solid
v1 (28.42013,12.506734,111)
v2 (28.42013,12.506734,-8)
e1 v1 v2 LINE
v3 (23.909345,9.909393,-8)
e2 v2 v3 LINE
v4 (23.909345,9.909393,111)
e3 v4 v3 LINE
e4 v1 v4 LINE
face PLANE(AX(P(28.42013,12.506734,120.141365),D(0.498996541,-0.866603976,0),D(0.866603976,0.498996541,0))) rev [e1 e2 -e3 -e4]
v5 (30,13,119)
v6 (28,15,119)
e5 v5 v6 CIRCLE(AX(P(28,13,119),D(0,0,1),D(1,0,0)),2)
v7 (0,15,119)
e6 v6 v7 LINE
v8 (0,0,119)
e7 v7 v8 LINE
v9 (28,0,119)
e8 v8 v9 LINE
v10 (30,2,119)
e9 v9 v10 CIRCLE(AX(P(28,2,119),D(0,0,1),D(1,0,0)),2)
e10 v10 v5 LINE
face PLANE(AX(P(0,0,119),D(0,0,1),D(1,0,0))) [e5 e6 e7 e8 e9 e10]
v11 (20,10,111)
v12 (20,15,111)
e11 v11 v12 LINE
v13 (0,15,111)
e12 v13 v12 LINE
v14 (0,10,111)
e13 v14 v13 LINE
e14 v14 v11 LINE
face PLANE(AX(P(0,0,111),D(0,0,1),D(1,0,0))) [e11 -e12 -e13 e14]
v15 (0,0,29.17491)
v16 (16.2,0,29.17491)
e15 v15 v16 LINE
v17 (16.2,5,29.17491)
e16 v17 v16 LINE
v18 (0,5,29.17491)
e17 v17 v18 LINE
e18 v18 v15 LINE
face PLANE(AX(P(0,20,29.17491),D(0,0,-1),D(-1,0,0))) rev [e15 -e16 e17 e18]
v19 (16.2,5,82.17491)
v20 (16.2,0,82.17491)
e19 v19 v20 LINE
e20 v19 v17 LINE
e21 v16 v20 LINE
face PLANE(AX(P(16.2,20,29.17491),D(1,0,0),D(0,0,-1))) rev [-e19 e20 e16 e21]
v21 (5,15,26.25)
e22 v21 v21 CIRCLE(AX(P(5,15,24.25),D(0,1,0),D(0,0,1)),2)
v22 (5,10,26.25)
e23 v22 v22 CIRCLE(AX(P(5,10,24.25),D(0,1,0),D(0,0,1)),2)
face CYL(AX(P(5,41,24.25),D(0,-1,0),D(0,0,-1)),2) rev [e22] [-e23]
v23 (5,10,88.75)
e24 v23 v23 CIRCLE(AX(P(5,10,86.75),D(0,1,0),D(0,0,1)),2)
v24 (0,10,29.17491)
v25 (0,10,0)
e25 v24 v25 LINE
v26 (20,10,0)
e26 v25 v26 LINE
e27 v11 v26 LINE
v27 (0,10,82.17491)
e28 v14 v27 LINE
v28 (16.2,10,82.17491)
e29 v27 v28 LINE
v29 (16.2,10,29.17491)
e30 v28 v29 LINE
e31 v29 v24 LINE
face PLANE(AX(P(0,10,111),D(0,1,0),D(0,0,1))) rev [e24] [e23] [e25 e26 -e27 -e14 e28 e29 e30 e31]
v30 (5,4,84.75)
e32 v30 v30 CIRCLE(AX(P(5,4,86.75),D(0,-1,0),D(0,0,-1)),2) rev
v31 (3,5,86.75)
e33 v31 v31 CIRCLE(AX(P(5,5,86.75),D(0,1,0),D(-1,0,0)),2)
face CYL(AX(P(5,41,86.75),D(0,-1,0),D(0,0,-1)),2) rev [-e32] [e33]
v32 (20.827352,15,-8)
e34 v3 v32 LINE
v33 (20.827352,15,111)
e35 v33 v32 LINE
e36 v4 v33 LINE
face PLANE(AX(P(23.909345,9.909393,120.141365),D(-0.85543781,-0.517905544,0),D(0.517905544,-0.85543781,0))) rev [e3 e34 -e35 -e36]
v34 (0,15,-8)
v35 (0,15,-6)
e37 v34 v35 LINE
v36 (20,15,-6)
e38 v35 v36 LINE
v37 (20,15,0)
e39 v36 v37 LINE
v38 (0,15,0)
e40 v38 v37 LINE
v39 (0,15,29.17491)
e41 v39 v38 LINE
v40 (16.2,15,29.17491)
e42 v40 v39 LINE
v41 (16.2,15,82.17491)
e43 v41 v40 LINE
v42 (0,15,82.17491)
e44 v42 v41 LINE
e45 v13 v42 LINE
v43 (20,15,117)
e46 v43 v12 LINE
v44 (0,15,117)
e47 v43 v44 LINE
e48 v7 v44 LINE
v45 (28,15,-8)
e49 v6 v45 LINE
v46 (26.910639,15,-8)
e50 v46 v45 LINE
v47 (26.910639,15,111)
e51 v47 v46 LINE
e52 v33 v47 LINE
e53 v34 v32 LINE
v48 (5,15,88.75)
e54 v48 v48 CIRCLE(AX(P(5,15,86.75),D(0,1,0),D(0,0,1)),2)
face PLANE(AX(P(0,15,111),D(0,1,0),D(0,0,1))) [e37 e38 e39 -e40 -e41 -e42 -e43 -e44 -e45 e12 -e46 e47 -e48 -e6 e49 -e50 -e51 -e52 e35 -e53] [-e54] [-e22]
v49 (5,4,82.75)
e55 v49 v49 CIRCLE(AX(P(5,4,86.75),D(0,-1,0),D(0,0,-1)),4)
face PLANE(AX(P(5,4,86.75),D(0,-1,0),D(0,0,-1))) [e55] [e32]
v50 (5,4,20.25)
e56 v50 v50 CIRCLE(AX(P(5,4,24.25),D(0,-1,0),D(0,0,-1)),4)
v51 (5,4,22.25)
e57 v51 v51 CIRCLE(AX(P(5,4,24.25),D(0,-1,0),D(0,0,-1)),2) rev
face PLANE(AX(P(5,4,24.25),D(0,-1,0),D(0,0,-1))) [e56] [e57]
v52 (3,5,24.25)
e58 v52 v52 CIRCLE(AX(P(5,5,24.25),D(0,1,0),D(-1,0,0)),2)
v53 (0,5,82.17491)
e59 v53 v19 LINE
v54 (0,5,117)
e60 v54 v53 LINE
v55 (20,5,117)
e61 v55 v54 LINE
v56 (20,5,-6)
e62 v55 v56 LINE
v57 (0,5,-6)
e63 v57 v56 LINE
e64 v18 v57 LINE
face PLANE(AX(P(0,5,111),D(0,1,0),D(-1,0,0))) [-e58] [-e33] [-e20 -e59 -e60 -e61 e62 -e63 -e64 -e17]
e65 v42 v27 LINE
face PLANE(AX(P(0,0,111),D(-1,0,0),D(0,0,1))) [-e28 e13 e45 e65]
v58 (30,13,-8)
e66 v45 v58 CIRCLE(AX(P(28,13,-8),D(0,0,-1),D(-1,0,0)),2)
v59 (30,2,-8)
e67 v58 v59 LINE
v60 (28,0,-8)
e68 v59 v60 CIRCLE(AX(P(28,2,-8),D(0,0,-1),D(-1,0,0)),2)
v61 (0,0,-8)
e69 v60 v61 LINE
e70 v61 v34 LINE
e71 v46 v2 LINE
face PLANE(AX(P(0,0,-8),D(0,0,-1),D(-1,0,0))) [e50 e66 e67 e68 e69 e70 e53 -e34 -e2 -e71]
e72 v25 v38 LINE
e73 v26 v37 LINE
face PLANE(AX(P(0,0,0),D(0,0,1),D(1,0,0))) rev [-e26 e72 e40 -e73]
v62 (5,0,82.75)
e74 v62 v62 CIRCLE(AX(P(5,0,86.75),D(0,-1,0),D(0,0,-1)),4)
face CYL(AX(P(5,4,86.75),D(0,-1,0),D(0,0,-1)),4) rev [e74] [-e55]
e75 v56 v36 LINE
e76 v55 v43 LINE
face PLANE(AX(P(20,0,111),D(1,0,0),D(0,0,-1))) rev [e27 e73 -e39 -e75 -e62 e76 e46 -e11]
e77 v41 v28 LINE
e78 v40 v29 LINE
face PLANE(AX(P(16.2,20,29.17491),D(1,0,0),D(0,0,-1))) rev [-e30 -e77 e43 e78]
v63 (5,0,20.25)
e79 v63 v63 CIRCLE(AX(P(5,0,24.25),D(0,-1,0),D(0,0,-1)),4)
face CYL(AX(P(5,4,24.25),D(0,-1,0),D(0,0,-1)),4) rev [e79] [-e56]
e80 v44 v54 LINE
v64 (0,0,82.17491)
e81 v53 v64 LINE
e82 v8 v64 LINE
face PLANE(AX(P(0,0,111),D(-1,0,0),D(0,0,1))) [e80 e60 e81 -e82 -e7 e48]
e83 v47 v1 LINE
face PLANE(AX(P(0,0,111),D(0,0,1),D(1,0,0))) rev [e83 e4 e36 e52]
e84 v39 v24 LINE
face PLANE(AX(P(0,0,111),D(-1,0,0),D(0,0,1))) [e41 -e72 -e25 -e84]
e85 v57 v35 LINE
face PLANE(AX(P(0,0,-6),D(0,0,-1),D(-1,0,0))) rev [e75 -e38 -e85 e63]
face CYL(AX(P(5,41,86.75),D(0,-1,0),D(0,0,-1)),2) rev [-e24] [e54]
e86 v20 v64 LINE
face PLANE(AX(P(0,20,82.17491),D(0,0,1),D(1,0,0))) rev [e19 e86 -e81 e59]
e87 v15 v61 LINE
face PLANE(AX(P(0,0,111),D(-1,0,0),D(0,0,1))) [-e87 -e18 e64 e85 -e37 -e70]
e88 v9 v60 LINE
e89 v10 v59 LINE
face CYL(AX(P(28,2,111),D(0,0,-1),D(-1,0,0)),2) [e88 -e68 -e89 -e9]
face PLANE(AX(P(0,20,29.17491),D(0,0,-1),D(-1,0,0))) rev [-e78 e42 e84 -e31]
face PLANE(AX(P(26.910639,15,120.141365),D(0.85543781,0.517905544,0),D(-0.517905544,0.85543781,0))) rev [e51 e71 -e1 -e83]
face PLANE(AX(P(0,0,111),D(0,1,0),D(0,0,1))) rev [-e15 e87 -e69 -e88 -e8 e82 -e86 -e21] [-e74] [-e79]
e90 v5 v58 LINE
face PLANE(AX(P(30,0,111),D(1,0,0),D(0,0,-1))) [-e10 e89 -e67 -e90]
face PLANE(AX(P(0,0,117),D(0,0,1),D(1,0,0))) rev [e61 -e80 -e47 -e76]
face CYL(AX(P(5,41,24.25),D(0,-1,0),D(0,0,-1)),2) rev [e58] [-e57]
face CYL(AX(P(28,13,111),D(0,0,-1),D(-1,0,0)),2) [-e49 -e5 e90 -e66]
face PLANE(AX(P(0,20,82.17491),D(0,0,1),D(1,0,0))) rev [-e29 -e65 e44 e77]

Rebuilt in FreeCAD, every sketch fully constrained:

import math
import FreeCAD as App
import Part
import Sketcher
Q = App.Units.Quantity

doc = App.newDocument("Part")
body = doc.addObject("PartDesign::Body", "Body")

# Sketch on XY plane
sketch1 = doc.addObject("Sketcher::SketchObject", "Sketch")
body.addObject(sketch1)
sketch1.AttachmentSupport = (doc.XY_Plane, [""])
sketch1.MapMode = "FlatFace"
sketch1.addGeometry([
    Part.LineSegment(App.Vector(0, 5, 0), App.Vector(0, 0, 0)),  # 0
    Part.LineSegment(App.Vector(0, 0, 0), App.Vector(28, 0, 0)),  # 1
    Part.ArcOfCircle(Part.Circle(App.Vector(28, 2, 0), App.Vector(0, 0, 1), 2), math.radians(-90), math.radians(0)),  # 2
    Part.LineSegment(App.Vector(30, 2, 0), App.Vector(30, 13, 0)),  # 3
    Part.ArcOfCircle(Part.Circle(App.Vector(28, 13, 0), App.Vector(0, 0, 1), 2), math.radians(0), math.radians(90)),  # 4
    Part.LineSegment(App.Vector(28, 15, 0), App.Vector(0, 15, 0)),  # 5
    Part.LineSegment(App.Vector(0, 15, 0), App.Vector(0, 10, 0)),  # 6
    Part.LineSegment(App.Vector(0, 10, 0), App.Vector(20, 10, 0)),  # 7
    Part.LineSegment(App.Vector(20, 10, 0), App.Vector(20, 5, 0)),  # 8
    Part.LineSegment(App.Vector(20, 5, 0), App.Vector(0, 5, 0)),  # 9
], False)
sketch1.addConstraint([
    Sketcher.Constraint("Coincident", 0, 2, 1, 1),
    Sketcher.Constraint("Tangent", 1, 2, 2, 1),
    Sketcher.Constraint("Tangent", 2, 2, 3, 1),
    Sketcher.Constraint("Tangent", 3, 2, 4, 1),
    Sketcher.Constraint("Tangent", 4, 2, 5, 1),
    Sketcher.Constraint("Coincident", 5, 2, 6, 1),
    Sketcher.Constraint("Coincident", 6, 2, 7, 1),
    Sketcher.Constraint("Coincident", 7, 2, 8, 1),
    Sketcher.Constraint("Coincident", 8, 2, 9, 1),
    Sketcher.Constraint("Coincident", 9, 2, 0, 1),
    Sketcher.Constraint("Vertical", 0),
    Sketcher.Constraint("Horizontal", 1),
    Sketcher.Constraint("Vertical", 3),
    Sketcher.Constraint("Horizontal", 5),
    Sketcher.Constraint("Vertical", 6),
    Sketcher.Constraint("Horizontal", 7),
    Sketcher.Constraint("Vertical", 8),
    Sketcher.Constraint("Horizontal", 9),
    Sketcher.Constraint("Coincident", 0, 2, -1, 1),
    Sketcher.Constraint("Equal", 2, 4),
    Sketcher.Constraint("PointOnObject", 5, 2, -2),
    Sketcher.Constraint("Equal", 0, 6),
    Sketcher.Constraint("Equal", 6, 8),
    Sketcher.Constraint("Radius", 2, Q("2 mm")),
    Sketcher.Constraint("DistanceX", 1, 1, 1, 2, Q("28 mm")),
    Sketcher.Constraint("DistanceX", 7, 1, 7, 2, Q("20 mm")),
    Sketcher.Constraint("DistanceY", 0, 2, 0, 1, Q("5 mm")),
])
pad1 = doc.addObject("PartDesign::Pad", "Pad")
body.addObject(pad1)
pad1.Profile = sketch1
pad1.Length = 111

# Sketch on XY plane
sketch2 = doc.addObject("Sketcher::SketchObject", "Sketch001")
body.addObject(sketch2)
sketch2.AttachmentSupport = (doc.XY_Plane, [""])
sketch2.MapMode = "FlatFace"
sketch2.AttachmentOffset = App.Placement(App.Vector(0, 0, 111), App.Rotation())
sketch2.addGeometry([
    Part.LineSegment(App.Vector(20, 15, 0), App.Vector(20, 5, 0)),  # 0
    Part.LineSegment(App.Vector(20, 5, 0), App.Vector(0, 5, 0)),  # 1
    Part.LineSegment(App.Vector(0, 5, 0), App.Vector(0, 0, 0)),  # 2
    Part.LineSegment(App.Vector(0, 0, 0), App.Vector(28, 0, 0)),  # 3
    Part.ArcOfCircle(Part.Circle(App.Vector(28, 2, 0), App.Vector(0, 0, 1), 2), math.radians(-90), math.radians(0)),  # 4
    Part.LineSegment(App.Vector(30, 2, 0), App.Vector(30, 13, 0)),  # 5
    Part.ArcOfCircle(Part.Circle(App.Vector(28, 13, 0), App.Vector(0, 0, 1), 2), math.radians(0), math.radians(90)),  # 6
    Part.LineSegment(App.Vector(28, 15, 0), App.Vector(20, 15, 0)),  # 7
], False)
sketch2.addConstraint([
    Sketcher.Constraint("Coincident", 0, 2, 1, 1),
    Sketcher.Constraint("Coincident", 1, 2, 2, 1),
    Sketcher.Constraint("Coincident", 2, 2, 3, 1),
    Sketcher.Constraint("Tangent", 3, 2, 4, 1),
    Sketcher.Constraint("Tangent", 4, 2, 5, 1),
    Sketcher.Constraint("Tangent", 5, 2, 6, 1),
    Sketcher.Constraint("Tangent", 6, 2, 7, 1),
    Sketcher.Constraint("Coincident", 7, 2, 0, 1),
    Sketcher.Constraint("Vertical", 0),
    Sketcher.Constraint("Horizontal", 1),
    Sketcher.Constraint("Vertical", 2),
    Sketcher.Constraint("Horizontal", 3),
    Sketcher.Constraint("Vertical", 5),
    Sketcher.Constraint("Horizontal", 7),
    Sketcher.Constraint("Coincident", 2, 2, -1, 1),
    Sketcher.Constraint("Equal", 4, 6),
    Sketcher.Constraint("Radius", 4, Q("2 mm")),
    Sketcher.Constraint("DistanceX", 1, 2, 1, 1, Q("20 mm")),
    Sketcher.Constraint("DistanceX", 3, 1, 3, 2, Q("28 mm")),
    Sketcher.Constraint("DistanceY", 0, 2, 0, 1, Q("10 mm")),
    Sketcher.Constraint("DistanceY", 2, 2, 2, 1, Q("5 mm")),
])
pad2 = doc.addObject("PartDesign::Pad", "Pad001")
body.addObject(pad2)
pad2.Profile = sketch2
pad2.Length = 6

# Sketch on XY plane
sketch3 = doc.addObject("Sketcher::SketchObject", "Sketch002")
body.addObject(sketch3)
sketch3.AttachmentSupport = (doc.XY_Plane, [""])
sketch3.MapMode = "FlatFace"
sketch3.AttachmentOffset = App.Placement(App.Vector(0, 0, 117), App.Rotation())
sketch3.addGeometry([
    Part.LineSegment(App.Vector(0, 15, 0), App.Vector(0, 0, 0)),  # 0
    Part.LineSegment(App.Vector(0, 0, 0), App.Vector(28, 0, 0)),  # 1
    Part.ArcOfCircle(Part.Circle(App.Vector(28, 2, 0), App.Vector(0, 0, 1), 2), math.radians(-90), math.radians(0)),  # 2
    Part.LineSegment(App.Vector(30, 2, 0), App.Vector(30, 13, 0)),  # 3
    Part.ArcOfCircle(Part.Circle(App.Vector(28, 13, 0), App.Vector(0, 0, 1), 2), math.radians(0), math.radians(90)),  # 4
    Part.LineSegment(App.Vector(28, 15, 0), App.Vector(0, 15, 0)),  # 5
], False)
sketch3.addConstraint([
    Sketcher.Constraint("Coincident", 0, 2, 1, 1),
    Sketcher.Constraint("Tangent", 1, 2, 2, 1),
    Sketcher.Constraint("Tangent", 2, 2, 3, 1),
    Sketcher.Constraint("Tangent", 3, 2, 4, 1),
    Sketcher.Constraint("Tangent", 4, 2, 5, 1),
    Sketcher.Constraint("Coincident", 5, 2, 0, 1),
    Sketcher.Constraint("Vertical", 0),
    Sketcher.Constraint("Horizontal", 1),
    Sketcher.Constraint("Vertical", 3),
    Sketcher.Constraint("Horizontal", 5),
    Sketcher.Constraint("Coincident", 0, 2, -1, 1),
    Sketcher.Constraint("Equal", 2, 4),
    Sketcher.Constraint("Radius", 2, Q("2 mm")),
    Sketcher.Constraint("DistanceX", 1, 1, 1, 2, Q("28 mm")),
    Sketcher.Constraint("DistanceY", 0, 2, 0, 1, Q("15 mm")),
])
pad3 = doc.addObject("PartDesign::Pad", "Pad002")
body.addObject(pad3)
pad3.Profile = sketch3
pad3.Length = 2

# Sketch on XY plane
sketch4 = doc.addObject("Sketcher::SketchObject", "Sketch003")
body.addObject(sketch4)
sketch4.AttachmentSupport = (doc.XY_Plane, [""])
sketch4.MapMode = "FlatFace"
sketch4.addGeometry([
    Part.LineSegment(App.Vector(20, 5, 0), App.Vector(20, 15, 0)),  # 0
    Part.LineSegment(App.Vector(20, 15, 0), App.Vector(28, 15, 0)),  # 1
    Part.ArcOfCircle(Part.Circle(App.Vector(28, 13, 0), App.Vector(0, 0, 1), 2), math.radians(0), math.radians(90)),  # 2
    Part.LineSegment(App.Vector(30, 13, 0), App.Vector(30, 2, 0)),  # 3
    Part.ArcOfCircle(Part.Circle(App.Vector(28, 2, 0), App.Vector(0, 0, 1), 2), math.radians(-90), math.radians(0)),  # 4
    Part.LineSegment(App.Vector(28, 0, 0), App.Vector(0, 0, 0)),  # 5
    Part.LineSegment(App.Vector(0, 0, 0), App.Vector(0, 5, 0)),  # 6
    Part.LineSegment(App.Vector(0, 5, 0), App.Vector(20, 5, 0)),  # 7
], False)
sketch4.addConstraint([
    Sketcher.Constraint("Coincident", 0, 2, 1, 1),
    Sketcher.Constraint("Tangent", 1, 2, 2, 2),
    Sketcher.Constraint("Tangent", 2, 1, 3, 1),
    Sketcher.Constraint("Tangent", 3, 2, 4, 2),
    Sketcher.Constraint("Tangent", 4, 1, 5, 1),
    Sketcher.Constraint("Coincident", 5, 2, 6, 1),
    Sketcher.Constraint("Coincident", 6, 2, 7, 1),
    Sketcher.Constraint("Coincident", 7, 2, 0, 1),
    Sketcher.Constraint("Vertical", 0),
    Sketcher.Constraint("Horizontal", 1),
    Sketcher.Constraint("Vertical", 3),
    Sketcher.Constraint("Horizontal", 5),
    Sketcher.Constraint("Vertical", 6),
    Sketcher.Constraint("Horizontal", 7),
    Sketcher.Constraint("Coincident", 5, 2, -1, 1),
    Sketcher.Constraint("Equal", 2, 4),
    Sketcher.Constraint("Radius", 2, Q("2 mm")),
    Sketcher.Constraint("DistanceX", 1, 1, 1, 2, Q("8 mm")),
    Sketcher.Constraint("DistanceX", 5, 2, 5, 1, Q("28 mm")),
    Sketcher.Constraint("DistanceY", 0, 1, 0, 2, Q("10 mm")),
    Sketcher.Constraint("DistanceY", 3, 2, 3, 1, Q("11 mm")),
])
pad4 = doc.addObject("PartDesign::Pad", "Pad003")
body.addObject(pad4)
pad4.Profile = sketch4
pad4.Length = 6
pad4.Reversed = True

# Sketch on XY plane
sketch5 = doc.addObject("Sketcher::SketchObject", "Sketch004")
body.addObject(sketch5)
sketch5.AttachmentSupport = (doc.XY_Plane, [""])
sketch5.MapMode = "FlatFace"
sketch5.AttachmentOffset = App.Placement(App.Vector(0, 0, -6), App.Rotation())
sketch5.addGeometry([
    Part.LineSegment(App.Vector(0, 15, 0), App.Vector(28, 15, 0)),  # 0
    Part.ArcOfCircle(Part.Circle(App.Vector(28, 13, 0), App.Vector(0, 0, 1), 2), math.radians(0), math.radians(90)),  # 1
    Part.LineSegment(App.Vector(30, 13, 0), App.Vector(30, 2, 0)),  # 2
    Part.ArcOfCircle(Part.Circle(App.Vector(28, 2, 0), App.Vector(0, 0, 1), 2), math.radians(-90), math.radians(0)),  # 3
    Part.LineSegment(App.Vector(28, 0, 0), App.Vector(0, 0, 0)),  # 4
    Part.LineSegment(App.Vector(0, 0, 0), App.Vector(0, 15, 0)),  # 5
], False)
sketch5.addConstraint([
    Sketcher.Constraint("Tangent", 0, 2, 1, 2),
    Sketcher.Constraint("Tangent", 1, 1, 2, 1),
    Sketcher.Constraint("Tangent", 2, 2, 3, 2),
    Sketcher.Constraint("Tangent", 3, 1, 4, 1),
    Sketcher.Constraint("Coincident", 4, 2, 5, 1),
    Sketcher.Constraint("Coincident", 5, 2, 0, 1),
    Sketcher.Constraint("Horizontal", 0),
    Sketcher.Constraint("Vertical", 2),
    Sketcher.Constraint("Horizontal", 4),
    Sketcher.Constraint("Vertical", 5),
    Sketcher.Constraint("Coincident", 4, 2, -1, 1),
    Sketcher.Constraint("Equal", 1, 3),
    Sketcher.Constraint("Radius", 1, Q("2 mm")),
    Sketcher.Constraint("DistanceX", 0, 1, 0, 2, Q("28 mm")),
    Sketcher.Constraint("DistanceY", 2, 2, 2, 1, Q("11 mm")),
])
pad5 = doc.addObject("PartDesign::Pad", "Pad004")
body.addObject(pad5)
pad5.Profile = sketch5
pad5.Length = 2
pad5.Reversed = True

# Sketch on XZ plane
sketch6 = doc.addObject("Sketcher::SketchObject", "Sketch005")
body.addObject(sketch6)
sketch6.AttachmentSupport = (doc.XZ_Plane, [""])
sketch6.MapMode = "FlatFace"
sketch6.addGeometry([
    Part.Circle(App.Vector(5, 24.2, 0), App.Vector(0, 0, 1), 2),
    Part.Circle(App.Vector(5, 86.8, 0), App.Vector(0, 0, 1), 2),
], False)
sketch6.addConstraint([
    Sketcher.Constraint("Equal", 0, 1),
    Sketcher.Constraint("Vertical", 0, 3, 1, 3),
    Sketcher.Constraint("Diameter", 0, Q("4 mm")),
    Sketcher.Constraint("DistanceX", -1, 1, 0, 3, Q("5 mm")),
    Sketcher.Constraint("DistanceY", 0, 3, 1, 3, Q("62.5 mm")),
    Sketcher.Constraint("DistanceY", -1, 1, 0, 3, Q("24.25 mm")),
])
pocket1 = doc.addObject("PartDesign::Pocket", "Pocket")
body.addObject(pocket1)
pocket1.Profile = sketch6
pocket1.Length = 41

# Sketch on XZ plane
sketch7 = doc.addObject("Sketcher::SketchObject", "Sketch006")
body.addObject(sketch7)
sketch7.AttachmentSupport = (doc.XZ_Plane, [""])
sketch7.MapMode = "FlatFace"
sketch7.addGeometry([
    Part.Circle(App.Vector(5, 24.2, 0), App.Vector(0, 0, 1), 4),
    Part.Circle(App.Vector(5, 86.8, 0), App.Vector(0, 0, 1), 4),
], False)
sketch7.addConstraint([
    Sketcher.Constraint("Equal", 0, 1),
    Sketcher.Constraint("Vertical", 0, 3, 1, 3),
    Sketcher.Constraint("Diameter", 0, Q("8 mm")),
    Sketcher.Constraint("DistanceX", -1, 1, 0, 3, Q("5 mm")),
    Sketcher.Constraint("DistanceY", 0, 3, 1, 3, Q("62.5 mm")),
    Sketcher.Constraint("DistanceY", -1, 1, 0, 3, Q("24.25 mm")),
])
pocket2 = doc.addObject("PartDesign::Pocket", "Pocket001")
body.addObject(pocket2)
pocket2.Profile = sketch7
pocket2.Length = 4

# Sketch on XZ plane
sketch8 = doc.addObject("Sketcher::SketchObject", "Sketch007")
body.addObject(sketch8)
sketch8.AttachmentSupport = (doc.XZ_Plane, [""])
sketch8.MapMode = "FlatFace"
sketch8.addGeometry([
    Part.LineSegment(App.Vector(0, 82, 0), App.Vector(0, 29, 0)),
    Part.LineSegment(App.Vector(0, 29, 0), App.Vector(16, 29, 0)),
    Part.LineSegment(App.Vector(16, 29, 0), App.Vector(16, 82, 0)),
    Part.LineSegment(App.Vector(16, 82, 0), App.Vector(0, 82, 0)),
], False)
sketch8.addConstraint([
    Sketcher.Constraint("Coincident", 0, 2, 1, 1),
    Sketcher.Constraint("Coincident", 1, 2, 2, 1),
    Sketcher.Constraint("Coincident", 2, 2, 3, 1),
    Sketcher.Constraint("Coincident", 3, 2, 0, 1),
    Sketcher.Constraint("Vertical", 0),
    Sketcher.Constraint("Horizontal", 1),
    Sketcher.Constraint("Vertical", 2),
    Sketcher.Constraint("Horizontal", 3),
    Sketcher.Constraint("PointOnObject", 0, 2, -2),
    Sketcher.Constraint("DistanceY", 0, 2, 0, 1, Q("53 mm")),
    Sketcher.Constraint("DistanceX", 1, 1, 1, 2, Q("16.2 mm")),
    Sketcher.Constraint("DistanceY", -1, 1, 0, 2, Q("29.17491 mm")),
])
pocket3 = doc.addObject("PartDesign::Pocket", "Pocket002")
body.addObject(pocket3)
pocket3.Profile = sketch8
pocket3.Length = 20

# Sketch on XY plane
sketch9 = doc.addObject("Sketcher::SketchObject", "Sketch008")
body.addObject(sketch9)
sketch9.AttachmentSupport = (doc.XY_Plane, [""])
sketch9.MapMode = "FlatFace"
sketch9.AttachmentOffset = App.Placement(App.Vector(0, 0, -8), App.Rotation())
sketch9.addGeometry([
    Part.LineSegment(App.Vector(26.9, 15, 0), App.Vector(28.4, 12.5, 0)),
    Part.LineSegment(App.Vector(28.4, 12.5, 0), App.Vector(23.9, 9.9, 0)),
    Part.LineSegment(App.Vector(23.9, 9.9, 0), App.Vector(20.8, 15, 0)),
    Part.LineSegment(App.Vector(20.8, 15, 0), App.Vector(26.9, 15, 0)),
], False)
sketch9.addConstraint([
    Sketcher.Constraint("Coincident", 0, 2, 1, 1),
    Sketcher.Constraint("Coincident", 1, 2, 2, 1),
    Sketcher.Constraint("Coincident", 2, 2, 3, 1),
    Sketcher.Constraint("Coincident", 3, 2, 0, 1),
    Sketcher.Constraint("Horizontal", 3),
    Sketcher.Constraint("Parallel", 0, 2),
    Sketcher.Constraint("DistanceY", -1, 1, 2, 2, Q("15 mm")),
    Sketcher.Constraint("Distance", 1, Q("5.205128 mm")),
    Sketcher.Constraint("Distance", 2, Q("5.950879 mm")),
    Sketcher.Constraint("DistanceX", 3, 1, 3, 2, Q("6.083287 mm")),
    Sketcher.Constraint("DistanceX", -1, 1, 0, 2, Q("28.42013 mm")),
    Sketcher.Constraint("DistanceX", -1, 1, 3, 2, Q("26.910639 mm")),
])
pocket4 = doc.addObject("PartDesign::Pocket", "Pocket003")
body.addObject(pocket4)
pocket4.Profile = sketch9
pocket4.Length = 119
pocket4.Reversed = True

doc.recompute()
